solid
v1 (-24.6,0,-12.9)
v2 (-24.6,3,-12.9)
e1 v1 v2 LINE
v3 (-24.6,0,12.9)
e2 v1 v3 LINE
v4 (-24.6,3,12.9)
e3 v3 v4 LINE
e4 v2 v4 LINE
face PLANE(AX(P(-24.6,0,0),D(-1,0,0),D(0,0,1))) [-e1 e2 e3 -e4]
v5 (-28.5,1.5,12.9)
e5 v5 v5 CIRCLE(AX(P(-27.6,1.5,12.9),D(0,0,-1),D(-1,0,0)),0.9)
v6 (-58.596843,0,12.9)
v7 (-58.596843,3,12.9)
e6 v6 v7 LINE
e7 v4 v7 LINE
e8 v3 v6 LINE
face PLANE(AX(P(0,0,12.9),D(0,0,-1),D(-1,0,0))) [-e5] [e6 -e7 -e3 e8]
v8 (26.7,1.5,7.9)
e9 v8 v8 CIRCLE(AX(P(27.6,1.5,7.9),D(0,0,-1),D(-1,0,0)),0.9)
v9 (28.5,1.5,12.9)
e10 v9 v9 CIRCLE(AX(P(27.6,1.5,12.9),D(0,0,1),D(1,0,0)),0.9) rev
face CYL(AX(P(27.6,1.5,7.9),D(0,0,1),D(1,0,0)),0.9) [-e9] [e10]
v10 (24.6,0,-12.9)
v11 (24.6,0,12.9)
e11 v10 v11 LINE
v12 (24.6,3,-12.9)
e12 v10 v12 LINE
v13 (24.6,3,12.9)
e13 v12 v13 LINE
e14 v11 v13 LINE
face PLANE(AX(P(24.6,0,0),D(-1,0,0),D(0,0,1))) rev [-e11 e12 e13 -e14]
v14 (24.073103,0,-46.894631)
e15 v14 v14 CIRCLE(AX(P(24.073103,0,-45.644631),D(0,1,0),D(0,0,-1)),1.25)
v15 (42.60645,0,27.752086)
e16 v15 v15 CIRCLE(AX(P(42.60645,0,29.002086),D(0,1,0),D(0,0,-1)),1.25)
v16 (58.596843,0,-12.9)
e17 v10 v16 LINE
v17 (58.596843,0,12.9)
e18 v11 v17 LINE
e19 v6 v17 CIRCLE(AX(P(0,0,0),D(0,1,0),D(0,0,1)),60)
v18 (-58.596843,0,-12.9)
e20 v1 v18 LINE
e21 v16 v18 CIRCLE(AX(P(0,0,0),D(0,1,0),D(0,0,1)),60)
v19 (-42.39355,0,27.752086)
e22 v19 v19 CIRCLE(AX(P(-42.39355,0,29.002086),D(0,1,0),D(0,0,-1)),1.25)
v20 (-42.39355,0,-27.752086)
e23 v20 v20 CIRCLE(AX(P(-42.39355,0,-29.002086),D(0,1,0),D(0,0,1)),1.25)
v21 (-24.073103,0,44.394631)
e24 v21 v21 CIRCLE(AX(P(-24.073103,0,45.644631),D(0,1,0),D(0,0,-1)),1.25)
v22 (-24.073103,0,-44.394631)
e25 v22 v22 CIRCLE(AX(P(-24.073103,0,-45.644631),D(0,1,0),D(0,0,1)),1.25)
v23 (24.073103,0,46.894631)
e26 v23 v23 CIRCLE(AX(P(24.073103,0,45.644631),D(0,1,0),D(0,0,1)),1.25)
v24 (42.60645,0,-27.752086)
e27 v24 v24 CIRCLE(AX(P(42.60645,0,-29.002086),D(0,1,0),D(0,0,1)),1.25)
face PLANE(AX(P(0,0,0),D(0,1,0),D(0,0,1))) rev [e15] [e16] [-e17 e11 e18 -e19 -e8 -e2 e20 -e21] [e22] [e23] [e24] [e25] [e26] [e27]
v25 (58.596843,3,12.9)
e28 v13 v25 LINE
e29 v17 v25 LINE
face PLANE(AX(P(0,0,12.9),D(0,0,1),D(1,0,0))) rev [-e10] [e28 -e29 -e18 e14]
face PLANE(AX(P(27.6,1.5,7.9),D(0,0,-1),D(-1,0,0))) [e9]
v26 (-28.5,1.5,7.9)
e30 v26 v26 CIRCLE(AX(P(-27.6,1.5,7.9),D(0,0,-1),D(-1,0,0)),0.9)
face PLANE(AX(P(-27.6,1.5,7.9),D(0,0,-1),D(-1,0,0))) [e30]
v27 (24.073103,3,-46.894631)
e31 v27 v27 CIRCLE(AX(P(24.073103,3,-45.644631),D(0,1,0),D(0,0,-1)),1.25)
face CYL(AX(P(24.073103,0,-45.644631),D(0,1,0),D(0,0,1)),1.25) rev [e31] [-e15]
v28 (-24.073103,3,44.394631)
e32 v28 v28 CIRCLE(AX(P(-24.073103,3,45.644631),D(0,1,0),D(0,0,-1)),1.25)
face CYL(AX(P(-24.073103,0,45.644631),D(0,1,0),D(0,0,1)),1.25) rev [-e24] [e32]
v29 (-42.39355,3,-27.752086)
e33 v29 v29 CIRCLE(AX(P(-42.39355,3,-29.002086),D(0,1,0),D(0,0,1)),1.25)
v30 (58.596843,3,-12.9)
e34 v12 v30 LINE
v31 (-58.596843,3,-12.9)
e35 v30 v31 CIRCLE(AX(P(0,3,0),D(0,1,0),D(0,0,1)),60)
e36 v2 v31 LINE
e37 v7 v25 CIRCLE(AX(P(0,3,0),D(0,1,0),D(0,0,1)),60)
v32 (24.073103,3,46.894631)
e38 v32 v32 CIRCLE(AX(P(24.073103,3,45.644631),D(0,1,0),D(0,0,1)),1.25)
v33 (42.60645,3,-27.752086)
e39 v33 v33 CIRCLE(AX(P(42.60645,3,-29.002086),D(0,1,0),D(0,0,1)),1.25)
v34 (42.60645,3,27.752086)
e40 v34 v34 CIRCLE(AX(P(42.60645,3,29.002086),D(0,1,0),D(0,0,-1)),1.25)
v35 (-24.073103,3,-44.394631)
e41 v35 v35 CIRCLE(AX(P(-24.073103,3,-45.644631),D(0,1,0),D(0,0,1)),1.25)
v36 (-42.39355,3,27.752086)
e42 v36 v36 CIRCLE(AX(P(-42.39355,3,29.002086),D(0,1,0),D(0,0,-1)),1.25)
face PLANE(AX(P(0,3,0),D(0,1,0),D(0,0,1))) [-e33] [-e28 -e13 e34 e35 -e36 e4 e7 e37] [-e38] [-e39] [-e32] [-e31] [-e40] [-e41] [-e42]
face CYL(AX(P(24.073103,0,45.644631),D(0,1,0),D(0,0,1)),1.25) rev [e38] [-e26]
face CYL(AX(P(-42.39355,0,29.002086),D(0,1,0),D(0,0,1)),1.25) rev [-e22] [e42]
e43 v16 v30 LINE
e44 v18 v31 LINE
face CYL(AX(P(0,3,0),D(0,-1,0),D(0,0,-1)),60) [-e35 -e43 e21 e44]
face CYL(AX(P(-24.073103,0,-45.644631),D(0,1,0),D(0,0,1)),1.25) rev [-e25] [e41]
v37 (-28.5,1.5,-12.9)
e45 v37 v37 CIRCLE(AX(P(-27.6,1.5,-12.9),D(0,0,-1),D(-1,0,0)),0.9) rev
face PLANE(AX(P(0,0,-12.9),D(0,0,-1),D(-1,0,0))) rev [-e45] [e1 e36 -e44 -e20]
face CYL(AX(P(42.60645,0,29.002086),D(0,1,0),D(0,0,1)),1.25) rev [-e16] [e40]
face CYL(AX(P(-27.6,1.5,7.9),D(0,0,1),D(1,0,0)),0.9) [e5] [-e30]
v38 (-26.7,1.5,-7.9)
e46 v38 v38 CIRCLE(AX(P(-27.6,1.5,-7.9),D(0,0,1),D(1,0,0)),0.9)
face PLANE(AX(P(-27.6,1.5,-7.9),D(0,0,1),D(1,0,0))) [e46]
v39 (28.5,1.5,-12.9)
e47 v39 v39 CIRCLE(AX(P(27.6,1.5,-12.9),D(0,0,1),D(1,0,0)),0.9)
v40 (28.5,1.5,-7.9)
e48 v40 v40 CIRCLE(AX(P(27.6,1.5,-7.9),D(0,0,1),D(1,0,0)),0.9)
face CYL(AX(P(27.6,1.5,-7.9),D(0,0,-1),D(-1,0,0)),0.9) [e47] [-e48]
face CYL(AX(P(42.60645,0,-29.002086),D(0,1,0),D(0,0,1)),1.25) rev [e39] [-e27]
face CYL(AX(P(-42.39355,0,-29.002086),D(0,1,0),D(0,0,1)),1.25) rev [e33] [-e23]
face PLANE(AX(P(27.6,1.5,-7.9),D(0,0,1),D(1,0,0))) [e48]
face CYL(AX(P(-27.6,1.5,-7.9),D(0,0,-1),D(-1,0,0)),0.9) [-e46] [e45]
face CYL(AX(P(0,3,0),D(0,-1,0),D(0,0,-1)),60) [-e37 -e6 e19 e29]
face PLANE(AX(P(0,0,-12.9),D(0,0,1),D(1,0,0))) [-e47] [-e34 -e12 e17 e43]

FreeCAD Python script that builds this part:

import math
import FreeCAD as App
import Part
import Sketcher

doc = App.newDocument("Part")
body = doc.addObject("PartDesign::Body", "Body")

sketch1 = doc.addObject("Sketcher::SketchObject", "Sketch")
body.addObject(sketch1)
sketch1.AttachmentSupport = (doc.XZ_Plane, [""])
sketch1.MapMode = "FlatFace"
sketch1.addGeometry(Part.Circle(App.Vector(0, 0, 0), App.Vector(0, 0, 1), 60), False)
sketch1.addConstraint([
    Sketcher.Constraint("Coincident", 0, 3, -1, 1),
    Sketcher.Constraint("Diameter", 0, 120.0),
])
pad1 = doc.addObject("PartDesign::Pad", "Pad")
body.addObject(pad1)
pad1.Profile = sketch1
pad1.Length = 3
pad1.Reversed = True

sketch2 = doc.addObject("Sketcher::SketchObject", "Sketch001")
body.addObject(sketch2)
sketch2.AttachmentSupport = (doc.XZ_Plane, [""])
sketch2.MapMode = "FlatFace"
sketch2.AttachmentOffset = App.Placement(App.Vector(0, 0, -3), App.Rotation())
sketch2.addGeometry([
    Part.Circle(App.Vector(-42.4, -29, 0), App.Vector(0, 0, 1), 1.2),
    Part.Circle(App.Vector(42.6, -29, 0), App.Vector(0, 0, 1), 1.2),
    Part.Circle(App.Vector(42.6, 29, 0), App.Vector(0, 0, 1), 1.2),
    Part.Circle(App.Vector(-42.4, 29, 0), App.Vector(0, 0, 1), 1.2),
    Part.Circle(App.Vector(-24.1, -45.6, 0), App.Vector(0, 0, 1), 1.2),
    Part.Circle(App.Vector(24.1, -45.6, 0), App.Vector(0, 0, 1), 1.2),
    Part.Circle(App.Vector(24.1, 45.6, 0), App.Vector(0, 0, 1), 1.2),
    Part.Circle(App.Vector(-24.1, 45.6, 0), App.Vector(0, 0, 1), 1.2),
], False)
sketch2.addConstraint([
    Sketcher.Constraint("Equal", 0, 1),
    Sketcher.Constraint("Equal", 1, 2),
    Sketcher.Constraint("Equal", 2, 3),
    Sketcher.Constraint("Equal", 3, 4),
    Sketcher.Constraint("Equal", 4, 5),
    Sketcher.Constraint("Equal", 5, 6),
    Sketcher.Constraint("Equal", 6, 7),
    Sketcher.Constraint("Symmetric", 4, 3, 6, 3, -1, 1),
    Sketcher.Constraint("Symmetric", 5, 3, 7, 3, -1, 1),
    Sketcher.Constraint("Symmetric", 4, 3, 5, 3, -2),
    Sketcher.Constraint("Symmetric", 1, 3, 2, 3, -1),
    Sketcher.Constraint("Symmetric", 0, 3, 3, 3, -1),
    Sketcher.Constraint("Horizontal", 0, 3, 1, 3),
    Sketcher.Constraint("Diameter", 0, 2.5),
    Sketcher.Constraint("DistanceX", 0, 3, 1, 3, 85.0),
    Sketcher.Constraint("DistanceX", 0, 3, -1, 1, 42.39355),
    Sketcher.Constraint("DistanceY", 4, 3, -1, 1, 45.644631),
    Sketcher.Constraint("DistanceY", 1, 3, 2, 3, 58.004172),
    Sketcher.Constraint("DistanceX", 4, 3, -1, 1, 24.073103),
])
pocket1 = doc.addObject("PartDesign::Pocket", "Pocket")
body.addObject(pocket1)
pocket1.Profile = sketch2
pocket1.Type = "ThroughAll"
pocket1.Reversed = True

sketch3 = doc.addObject("Sketcher::SketchObject", "Sketch002")
body.addObject(sketch3)
sketch3.AttachmentSupport = (doc.XZ_Plane, [""])
sketch3.MapMode = "FlatFace"
sketch3.AttachmentOffset = App.Placement(App.Vector(0, 0, -3), App.Rotation())
sketch3.addGeometry([
    Part.LineSegment(App.Vector(-25, -13, 0), App.Vector(-59, -13, 0)),
    Part.ArcOfCircle(Part.Circle(App.Vector(0, 0, 0), App.Vector(0, 0, 1), 60), math.radians(168), math.radians(192)),
    Part.LineSegment(App.Vector(-59, 13, 0), App.Vector(-25, 13, 0)),
    Part.LineSegment(App.Vector(-25, 13, 0), App.Vector(-25, -13, 0)),
    Part.LineSegment(App.Vector(59, -13, 0), App.Vector(25, -13, 0)),
    Part.LineSegment(App.Vector(25, -13, 0), App.Vector(25, 13, 0)),
    Part.LineSegment(App.Vector(25, 13, 0), App.Vector(59, 13, 0)),
    Part.ArcOfCircle(Part.Circle(App.Vector(0, 0, 0), App.Vector(0, 0, 1), 60), math.radians(0), math.radians(12.42)),
    Part.ArcOfCircle(Part.Circle(App.Vector(0, 0, 0), App.Vector(0, 0, 1), 60), math.radians(-12.42), math.radians(0)),
], False)
sketch3.addConstraint([
    Sketcher.Constraint("Coincident", 0, 2, 1, 2),
    Sketcher.Constraint("Coincident", 1, 1, 2, 1),
    Sketcher.Constraint("Coincident", 2, 2, 3, 1),
    Sketcher.Constraint("Coincident", 3, 2, 0, 1),
    Sketcher.Constraint("Coincident", 4, 2, 5, 1),
    Sketcher.Constraint("Coincident", 5, 2, 6, 1),
    Sketcher.Constraint("Coincident", 6, 2, 7, 2),
    Sketcher.Constraint("Tangent", 7, 1, 8, 2),
    Sketcher.Constraint("Coincident", 8, 1, 4, 1),
    Sketcher.Constraint("Horizontal", 0),
    Sketcher.Constraint("Horizontal", 2),
    Sketcher.Constraint("Vertical", 3),
    Sketcher.Constraint("Horizontal", 4),
    Sketcher.Constraint("Vertical", 5),
    Sketcher.Constraint("Horizontal", 6),
    Sketcher.Constraint("Coincident", 1, 3, -1, 1),
    Sketcher.Constraint("Coincident", 7, 3, -1, 1),
    Sketcher.Constraint("Equal", 1, 7),
    Sketcher.Constraint("Equal", 7, 8),
    Sketcher.Constraint("Symmetric", 2, 2, 4, 2, -1, 1),
    Sketcher.Constraint("PointOnObject", 7, 1, -1),
    Sketcher.Constraint("Horizontal", 3, 2, 4, 2),
    Sketcher.Constraint("Horizontal", 2, 2, 5, 2),
    Sketcher.Constraint("Radius", 1, 60.0),
    Sketcher.Constraint("DistanceY", 3, 2, 3, 1, 25.8),
    Sketcher.Constraint("DistanceX", 2, 2, -1, 1, 24.6),
])
pocket2 = doc.addObject("PartDesign::Pocket", "Pocket001")
body.addObject(pocket2)
pocket2.Profile = sketch3
pocket2.Type = "ThroughAll"
pocket2.Reversed = True

sketch4 = doc.addObject("Sketcher::SketchObject", "Sketch003")
body.addObject(sketch4)
sketch4.AttachmentSupport = (doc.XY_Plane, [""])
sketch4.MapMode = "FlatFace"
sketch4.AttachmentOffset = App.Placement(App.Vector(0, 0, -12.9), App.Rotation())
sketch4.addGeometry(Part.Circle(App.Vector(27.6, 1.5, 0), App.Vector(0, 0, 1), 0.9), False)
sketch4.addConstraint([
    Sketcher.Constraint("Diameter", 0, 1.8),
    Sketcher.Constraint("DistanceX", -1, 1, 0, 3, 27.6),
    Sketcher.Constraint("DistanceY", -1, 1, 0, 3, 1.5),
])
pad2 = doc.addObject("PartDesign::Pad", "Pad001")
body.addObject(pad2)
pad2.Profile = sketch4
pad2.Length = 5

sketch5 = doc.addObject("Sketcher::SketchObject", "Sketch004")
body.addObject(sketch5)
sketch5.AttachmentSupport = (doc.XY_Plane, [""])
sketch5.MapMode = "FlatFace"
sketch5.AttachmentOffset = App.Placement(App.Vector(0, 0, 12.9), App.Rotation())
sketch5.addGeometry(Part.Circle(App.Vector(27.6, 1.5, 0), App.Vector(0, 0, 1), 0.9), False)
sketch5.addConstraint([
    Sketcher.Constraint("Diameter", 0, 1.8),
    Sketcher.Constraint("DistanceX", -1, 1, 0, 3, 27.6),
    Sketcher.Constraint("DistanceY", -1, 1, 0, 3, 1.5),
])
pad3 = doc.addObject("PartDesign::Pad", "Pad002")
body.addObject(pad3)
pad3.Profile = sketch5
pad3.Length = 5
pad3.Reversed = True

sketch6 = doc.addObject("Sketcher::SketchObject", "Sketch005")
body.addObject(sketch6)
sketch6.AttachmentSupport = (doc.XY_Plane, [""])
sketch6.MapMode = "FlatFace"
sketch6.AttachmentOffset = App.Placement(App.Vector(0, 0, -12.9), App.Rotation())
sketch6.addGeometry(Part.Circle(App.Vector(-27.6, 1.5, 0), App.Vector(0, 0, 1), 0.9), False)
sketch6.addConstraint([
    Sketcher.Constraint("Diameter", 0, 1.8),
    Sketcher.Constraint("DistanceX", 0, 3, -1, 1, 27.6),
    Sketcher.Constraint("DistanceY", -1, 1, 0, 3, 1.5),
])
pad4 = doc.addObject("PartDesign::Pad", "Pad003")
body.addObject(pad4)
pad4.Profile = sketch6
pad4.Length = 5

sketch7 = doc.addObject("Sketcher::SketchObject", "Sketch006")
body.addObject(sketch7)
sketch7.AttachmentSupport = (doc.XY_Plane, [""])
sketch7.MapMode = "FlatFace"
sketch7.AttachmentOffset = App.Placement(App.Vector(0, 0, 12.9), App.Rotation())
sketch7.addGeometry(Part.Circle(App.Vector(-27.6, 1.5, 0), App.Vector(0, 0, 1), 0.9), False)
sketch7.addConstraint([
    Sketcher.Constraint("Diameter", 0, 1.8),
    Sketcher.Constraint("DistanceX", 0, 3, -1, 1, 27.6),
    Sketcher.Constraint("DistanceY", -1, 1, 0, 3, 1.5),
])
pad5 = doc.addObject("PartDesign::Pad", "Pad004")
body.addObject(pad5)
pad5.Profile = sketch7
pad5.Length = 5
pad5.Reversed = True

doc.recompute()
